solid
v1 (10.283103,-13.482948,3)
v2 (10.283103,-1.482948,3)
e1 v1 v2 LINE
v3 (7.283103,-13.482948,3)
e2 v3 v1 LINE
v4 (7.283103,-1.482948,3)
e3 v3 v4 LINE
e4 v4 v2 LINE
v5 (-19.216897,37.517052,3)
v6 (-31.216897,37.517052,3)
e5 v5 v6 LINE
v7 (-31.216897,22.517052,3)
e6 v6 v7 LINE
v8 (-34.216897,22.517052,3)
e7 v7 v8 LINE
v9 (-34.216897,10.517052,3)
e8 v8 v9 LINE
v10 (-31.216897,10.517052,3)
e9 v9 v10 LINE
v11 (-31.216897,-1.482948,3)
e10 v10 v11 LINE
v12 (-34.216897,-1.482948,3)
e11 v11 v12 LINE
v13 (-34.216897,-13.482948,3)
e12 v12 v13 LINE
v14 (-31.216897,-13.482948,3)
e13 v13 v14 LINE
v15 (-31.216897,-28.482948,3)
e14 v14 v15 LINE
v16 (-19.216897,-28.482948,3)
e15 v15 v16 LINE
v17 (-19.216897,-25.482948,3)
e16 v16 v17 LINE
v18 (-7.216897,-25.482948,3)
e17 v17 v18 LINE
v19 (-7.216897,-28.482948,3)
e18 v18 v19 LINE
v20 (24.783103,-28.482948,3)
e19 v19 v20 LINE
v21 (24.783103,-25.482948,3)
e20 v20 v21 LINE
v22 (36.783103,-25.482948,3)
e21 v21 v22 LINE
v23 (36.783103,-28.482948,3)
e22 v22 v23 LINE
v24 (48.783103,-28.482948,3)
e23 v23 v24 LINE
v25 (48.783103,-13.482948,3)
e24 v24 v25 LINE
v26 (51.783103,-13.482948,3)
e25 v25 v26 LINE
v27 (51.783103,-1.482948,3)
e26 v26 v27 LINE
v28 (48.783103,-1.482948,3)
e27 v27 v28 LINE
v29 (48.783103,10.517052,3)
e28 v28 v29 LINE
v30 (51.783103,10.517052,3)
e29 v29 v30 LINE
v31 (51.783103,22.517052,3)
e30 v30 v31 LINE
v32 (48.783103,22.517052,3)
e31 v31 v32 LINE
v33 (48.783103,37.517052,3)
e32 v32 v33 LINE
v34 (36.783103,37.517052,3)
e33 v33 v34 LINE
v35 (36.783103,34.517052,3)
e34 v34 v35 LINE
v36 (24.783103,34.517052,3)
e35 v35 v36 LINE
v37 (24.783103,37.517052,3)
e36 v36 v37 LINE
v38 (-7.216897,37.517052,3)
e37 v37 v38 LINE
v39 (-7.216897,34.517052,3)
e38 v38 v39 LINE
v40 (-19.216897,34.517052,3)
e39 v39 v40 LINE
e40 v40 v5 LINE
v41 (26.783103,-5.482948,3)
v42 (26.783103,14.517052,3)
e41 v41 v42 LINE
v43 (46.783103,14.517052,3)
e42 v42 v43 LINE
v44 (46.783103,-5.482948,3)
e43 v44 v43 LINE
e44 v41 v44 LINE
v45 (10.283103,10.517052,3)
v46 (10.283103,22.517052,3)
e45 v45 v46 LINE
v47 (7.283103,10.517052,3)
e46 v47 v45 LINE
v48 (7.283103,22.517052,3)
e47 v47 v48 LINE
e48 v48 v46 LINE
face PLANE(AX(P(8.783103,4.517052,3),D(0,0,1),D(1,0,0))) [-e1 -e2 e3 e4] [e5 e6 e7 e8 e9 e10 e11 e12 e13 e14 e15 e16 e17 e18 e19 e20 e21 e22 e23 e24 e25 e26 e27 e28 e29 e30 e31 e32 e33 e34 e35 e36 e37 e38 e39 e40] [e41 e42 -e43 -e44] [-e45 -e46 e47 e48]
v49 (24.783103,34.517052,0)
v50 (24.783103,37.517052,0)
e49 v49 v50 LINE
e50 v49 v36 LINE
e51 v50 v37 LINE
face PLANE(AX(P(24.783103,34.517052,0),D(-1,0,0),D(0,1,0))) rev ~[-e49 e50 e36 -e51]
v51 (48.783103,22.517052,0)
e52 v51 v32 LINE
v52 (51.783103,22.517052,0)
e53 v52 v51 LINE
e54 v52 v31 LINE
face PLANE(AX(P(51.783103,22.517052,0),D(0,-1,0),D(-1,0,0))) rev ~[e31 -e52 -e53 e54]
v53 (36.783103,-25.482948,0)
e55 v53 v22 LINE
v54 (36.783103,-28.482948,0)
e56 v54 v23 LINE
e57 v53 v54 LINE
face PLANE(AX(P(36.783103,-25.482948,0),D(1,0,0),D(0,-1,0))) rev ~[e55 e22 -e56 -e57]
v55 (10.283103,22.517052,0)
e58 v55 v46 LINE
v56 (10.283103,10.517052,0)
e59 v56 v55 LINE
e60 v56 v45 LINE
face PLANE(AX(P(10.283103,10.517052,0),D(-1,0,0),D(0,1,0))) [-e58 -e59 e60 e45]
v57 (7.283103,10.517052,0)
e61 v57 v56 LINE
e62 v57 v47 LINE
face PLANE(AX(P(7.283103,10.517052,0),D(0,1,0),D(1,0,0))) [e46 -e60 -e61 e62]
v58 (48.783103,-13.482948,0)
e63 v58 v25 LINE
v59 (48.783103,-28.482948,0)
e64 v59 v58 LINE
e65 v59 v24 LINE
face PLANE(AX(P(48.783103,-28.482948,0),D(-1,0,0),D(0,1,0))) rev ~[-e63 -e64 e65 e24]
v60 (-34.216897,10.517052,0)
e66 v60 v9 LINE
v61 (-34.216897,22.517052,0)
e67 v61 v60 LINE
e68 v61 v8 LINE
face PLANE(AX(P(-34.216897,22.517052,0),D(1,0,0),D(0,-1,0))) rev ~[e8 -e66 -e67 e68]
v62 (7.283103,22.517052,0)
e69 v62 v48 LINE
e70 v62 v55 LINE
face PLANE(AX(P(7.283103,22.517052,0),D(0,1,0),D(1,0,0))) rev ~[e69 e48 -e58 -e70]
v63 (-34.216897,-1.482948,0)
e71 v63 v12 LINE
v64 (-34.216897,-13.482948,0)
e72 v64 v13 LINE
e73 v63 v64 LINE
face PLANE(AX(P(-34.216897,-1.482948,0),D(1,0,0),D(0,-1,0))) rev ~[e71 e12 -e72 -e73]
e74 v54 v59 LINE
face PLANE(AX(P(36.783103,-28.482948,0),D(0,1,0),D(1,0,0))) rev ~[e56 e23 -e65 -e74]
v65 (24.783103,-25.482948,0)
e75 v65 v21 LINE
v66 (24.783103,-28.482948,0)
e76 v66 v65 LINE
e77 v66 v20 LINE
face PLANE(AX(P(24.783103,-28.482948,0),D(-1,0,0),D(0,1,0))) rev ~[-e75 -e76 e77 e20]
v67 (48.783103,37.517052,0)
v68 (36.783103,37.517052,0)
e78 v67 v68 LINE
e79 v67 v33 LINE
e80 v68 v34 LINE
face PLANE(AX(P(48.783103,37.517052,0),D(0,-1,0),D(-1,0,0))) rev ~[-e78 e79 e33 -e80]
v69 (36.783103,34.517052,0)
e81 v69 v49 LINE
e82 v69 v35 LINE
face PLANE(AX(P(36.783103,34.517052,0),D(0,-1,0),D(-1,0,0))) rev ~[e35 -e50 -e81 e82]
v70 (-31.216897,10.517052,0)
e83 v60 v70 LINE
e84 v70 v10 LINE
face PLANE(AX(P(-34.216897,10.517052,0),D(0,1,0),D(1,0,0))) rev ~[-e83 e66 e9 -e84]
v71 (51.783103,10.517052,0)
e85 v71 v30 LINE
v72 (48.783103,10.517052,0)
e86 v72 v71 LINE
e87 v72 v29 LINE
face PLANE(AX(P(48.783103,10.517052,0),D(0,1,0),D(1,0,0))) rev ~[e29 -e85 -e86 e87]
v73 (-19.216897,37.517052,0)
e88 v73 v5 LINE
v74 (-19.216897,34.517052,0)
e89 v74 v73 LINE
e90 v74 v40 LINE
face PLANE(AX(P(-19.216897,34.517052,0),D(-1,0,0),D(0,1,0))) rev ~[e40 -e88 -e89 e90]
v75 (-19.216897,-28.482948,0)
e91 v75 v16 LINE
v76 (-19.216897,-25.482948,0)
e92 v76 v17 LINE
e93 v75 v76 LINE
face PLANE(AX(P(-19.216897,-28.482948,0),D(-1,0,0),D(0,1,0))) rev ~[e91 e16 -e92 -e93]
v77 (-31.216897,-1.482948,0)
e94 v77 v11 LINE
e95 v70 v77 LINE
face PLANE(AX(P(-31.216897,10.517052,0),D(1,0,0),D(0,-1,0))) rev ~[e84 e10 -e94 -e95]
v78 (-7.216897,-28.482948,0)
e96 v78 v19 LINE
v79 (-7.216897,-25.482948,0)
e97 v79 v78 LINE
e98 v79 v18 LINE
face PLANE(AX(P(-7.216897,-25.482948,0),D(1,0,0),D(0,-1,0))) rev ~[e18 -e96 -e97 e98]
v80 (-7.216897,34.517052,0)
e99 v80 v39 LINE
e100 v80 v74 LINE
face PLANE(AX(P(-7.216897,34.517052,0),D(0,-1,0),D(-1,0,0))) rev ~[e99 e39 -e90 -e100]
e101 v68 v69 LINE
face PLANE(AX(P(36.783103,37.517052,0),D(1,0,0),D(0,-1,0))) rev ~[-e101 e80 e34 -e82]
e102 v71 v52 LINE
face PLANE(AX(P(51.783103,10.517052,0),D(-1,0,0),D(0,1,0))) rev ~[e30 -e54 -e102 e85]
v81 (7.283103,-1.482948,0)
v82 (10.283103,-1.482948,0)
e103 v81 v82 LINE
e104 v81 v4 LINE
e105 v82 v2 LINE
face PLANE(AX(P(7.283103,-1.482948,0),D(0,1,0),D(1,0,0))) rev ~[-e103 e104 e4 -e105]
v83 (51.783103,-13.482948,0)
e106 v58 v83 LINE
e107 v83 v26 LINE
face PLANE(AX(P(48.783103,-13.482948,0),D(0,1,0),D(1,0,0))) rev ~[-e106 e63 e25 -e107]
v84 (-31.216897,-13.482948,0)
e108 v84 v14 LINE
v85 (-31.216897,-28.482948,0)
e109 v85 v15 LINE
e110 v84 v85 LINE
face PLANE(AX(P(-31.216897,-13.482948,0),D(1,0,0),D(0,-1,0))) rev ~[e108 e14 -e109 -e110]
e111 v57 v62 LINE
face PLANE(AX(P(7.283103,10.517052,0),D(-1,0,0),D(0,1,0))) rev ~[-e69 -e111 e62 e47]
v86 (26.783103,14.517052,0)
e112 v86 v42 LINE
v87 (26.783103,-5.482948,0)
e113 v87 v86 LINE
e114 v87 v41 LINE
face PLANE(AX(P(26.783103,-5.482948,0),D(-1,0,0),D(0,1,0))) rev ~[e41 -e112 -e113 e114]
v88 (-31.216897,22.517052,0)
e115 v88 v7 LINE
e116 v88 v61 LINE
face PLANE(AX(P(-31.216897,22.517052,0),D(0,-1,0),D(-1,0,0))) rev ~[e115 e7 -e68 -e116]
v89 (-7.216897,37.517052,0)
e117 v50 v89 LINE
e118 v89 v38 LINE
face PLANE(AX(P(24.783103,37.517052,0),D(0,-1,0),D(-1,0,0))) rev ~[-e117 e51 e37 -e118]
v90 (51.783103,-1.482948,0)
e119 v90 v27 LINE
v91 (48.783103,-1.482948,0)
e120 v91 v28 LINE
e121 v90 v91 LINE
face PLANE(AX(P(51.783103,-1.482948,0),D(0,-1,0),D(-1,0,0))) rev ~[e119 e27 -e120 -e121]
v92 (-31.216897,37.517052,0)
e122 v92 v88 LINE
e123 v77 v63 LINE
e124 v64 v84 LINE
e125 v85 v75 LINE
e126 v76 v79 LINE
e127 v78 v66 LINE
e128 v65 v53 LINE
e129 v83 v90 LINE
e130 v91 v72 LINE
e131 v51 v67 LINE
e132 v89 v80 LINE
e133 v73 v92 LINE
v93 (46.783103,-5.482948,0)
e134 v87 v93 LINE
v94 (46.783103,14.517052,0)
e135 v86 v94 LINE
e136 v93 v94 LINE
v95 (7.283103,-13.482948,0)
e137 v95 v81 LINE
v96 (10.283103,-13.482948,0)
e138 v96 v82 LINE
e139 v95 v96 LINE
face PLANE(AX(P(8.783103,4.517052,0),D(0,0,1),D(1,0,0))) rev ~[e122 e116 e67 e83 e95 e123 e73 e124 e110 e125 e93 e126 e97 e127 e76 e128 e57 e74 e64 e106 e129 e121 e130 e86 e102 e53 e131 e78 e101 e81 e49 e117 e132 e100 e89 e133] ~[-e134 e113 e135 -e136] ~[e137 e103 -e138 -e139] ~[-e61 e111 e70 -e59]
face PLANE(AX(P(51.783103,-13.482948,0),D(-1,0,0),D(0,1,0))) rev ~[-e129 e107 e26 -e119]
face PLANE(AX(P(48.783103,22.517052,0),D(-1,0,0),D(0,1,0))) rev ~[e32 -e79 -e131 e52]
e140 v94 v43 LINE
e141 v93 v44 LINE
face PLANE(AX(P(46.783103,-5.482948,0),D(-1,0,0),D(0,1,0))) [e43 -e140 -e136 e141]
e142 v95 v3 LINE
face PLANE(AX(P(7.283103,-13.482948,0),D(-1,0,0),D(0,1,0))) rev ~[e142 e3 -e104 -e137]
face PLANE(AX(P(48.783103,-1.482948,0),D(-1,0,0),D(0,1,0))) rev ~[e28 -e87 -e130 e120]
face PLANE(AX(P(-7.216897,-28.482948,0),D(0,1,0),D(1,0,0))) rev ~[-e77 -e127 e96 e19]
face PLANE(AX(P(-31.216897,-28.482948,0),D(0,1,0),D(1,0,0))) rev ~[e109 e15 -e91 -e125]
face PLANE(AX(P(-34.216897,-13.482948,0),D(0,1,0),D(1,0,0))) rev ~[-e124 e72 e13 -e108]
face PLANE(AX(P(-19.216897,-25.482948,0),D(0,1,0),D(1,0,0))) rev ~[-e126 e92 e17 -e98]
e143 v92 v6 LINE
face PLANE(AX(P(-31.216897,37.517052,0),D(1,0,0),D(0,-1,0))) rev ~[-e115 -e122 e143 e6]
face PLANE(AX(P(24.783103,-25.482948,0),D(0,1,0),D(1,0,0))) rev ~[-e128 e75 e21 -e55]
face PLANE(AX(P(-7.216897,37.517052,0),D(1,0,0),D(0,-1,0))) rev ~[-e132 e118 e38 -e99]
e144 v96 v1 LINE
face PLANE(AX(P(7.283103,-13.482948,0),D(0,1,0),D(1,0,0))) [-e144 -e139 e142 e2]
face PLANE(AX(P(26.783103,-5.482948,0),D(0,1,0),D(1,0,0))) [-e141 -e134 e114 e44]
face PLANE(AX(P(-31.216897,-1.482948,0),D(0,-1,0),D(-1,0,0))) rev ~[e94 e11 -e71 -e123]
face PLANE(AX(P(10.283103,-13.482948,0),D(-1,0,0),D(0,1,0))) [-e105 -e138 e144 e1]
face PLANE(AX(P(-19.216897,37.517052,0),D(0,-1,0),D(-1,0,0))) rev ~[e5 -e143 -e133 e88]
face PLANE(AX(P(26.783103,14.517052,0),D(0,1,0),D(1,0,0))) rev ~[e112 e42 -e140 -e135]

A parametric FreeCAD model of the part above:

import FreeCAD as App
import Part
import Sketcher
Q = App.Units.Quantity


def add_polygon(sketch, points):
    """Adds a closed chain of lines whose ends are joined by coincident constraints."""
    first, n = sketch.GeometryCount, len(points)
    for a, b in zip(points, points[1:] + points[:1]):
        sketch.addGeometry(Part.LineSegment(App.Vector(*a, 0), App.Vector(*b, 0)), False)
    for i in range(n):
        sketch.addConstraint(Sketcher.Constraint("Coincident", first + i, 2, first + (i + 1) % n, 1))

doc = App.newDocument("Part")
body = doc.addObject("PartDesign::Body", "Body")

sketch1 = doc.addObject("Sketcher::SketchObject", "Sketch")
body.addObject(sketch1)
sketch1.AttachmentSupport = (doc.XY_Plane, [""])
sketch1.MapMode = "FlatFace"
add_polygon(sketch1, [(-31.216897, 10.517052), (-31.216897, -1.482948), (-34.216897, -1.482948), (-34.216897, -13.482948), (-31.216897, -13.482948), (-31.216897, -28.482948), (-19.216897, -28.482948), (-19.216897, -25.482948), (-7.216897, -25.482948), (-7.216897, -28.482948), (24.783103, -28.482948), (24.783103, -25.482948), (36.783103, -25.482948), (36.783103, -28.482948), (48.783103, -28.482948), (48.783103, -13.482948), (51.783103, -13.482948), (51.783103, -1.482948), (48.783103, -1.482948), (48.783103, 10.517052), (51.783103, 10.517052), (51.783103, 22.517052), (48.783103, 22.517052), (48.783103, 37.517052), (36.783103, 37.517052), (36.783103, 34.517052), (24.783103, 34.517052), (24.783103, 37.517052), (-7.216897, 37.517052), (-7.216897, 34.517052), (-19.216897, 34.517052), (-19.216897, 37.517052), (-31.216897, 37.517052), (-31.216897, 22.517052), (-34.216897, 22.517052), (-34.216897, 10.517052)])
add_polygon(sketch1, [(10.283103, -13.482948), (7.283103, -13.482948), (7.283103, -1.482948), (10.283103, -1.482948)])
add_polygon(sketch1, [(10.283103, 10.517052), (7.283103, 10.517052), (7.283103, 22.517052), (10.283103, 22.517052)])
add_polygon(sketch1, [(46.783103, -5.482948), (26.783103, -5.482948), (26.783103, 14.517052), (46.783103, 14.517052)])
sketch1.addConstraint(Sketcher.Constraint("Vertical", 0))
sketch1.addConstraint(Sketcher.Constraint("Horizontal", 1))
sketch1.addConstraint(Sketcher.Constraint("Vertical", 2))
sketch1.addConstraint(Sketcher.Constraint("Horizontal", 3))
sketch1.addConstraint(Sketcher.Constraint("Vertical", 4))
sketch1.addConstraint(Sketcher.Constraint("Horizontal", 5))
sketch1.addConstraint(Sketcher.Constraint("Vertical", 6))
sketch1.addConstraint(Sketcher.Constraint("Horizontal", 7))
sketch1.addConstraint(Sketcher.Constraint("Vertical", 8))
sketch1.addConstraint(Sketcher.Constraint("Horizontal", 9))
sketch1.addConstraint(Sketcher.Constraint("Vertical", 10))
sketch1.addConstraint(Sketcher.Constraint("Horizontal", 11))
sketch1.addConstraint(Sketcher.Constraint("Vertical", 12))
sketch1.addConstraint(Sketcher.Constraint("Horizontal", 13))
sketch1.addConstraint(Sketcher.Constraint("Vertical", 14))
sketch1.addConstraint(Sketcher.Constraint("Horizontal", 15))
sketch1.addConstraint(Sketcher.Constraint("Vertical", 16))
sketch1.addConstraint(Sketcher.Constraint("Horizontal", 17))
sketch1.addConstraint(Sketcher.Constraint("Vertical", 18))
sketch1.addConstraint(Sketcher.Constraint("Horizontal", 19))
sketch1.addConstraint(Sketcher.Constraint("Vertical", 20))
sketch1.addConstraint(Sketcher.Constraint("Horizontal", 21))
sketch1.addConstraint(Sketcher.Constraint("Vertical", 22))
sketch1.addConstraint(Sketcher.Constraint("Horizontal", 23))
sketch1.addConstraint(Sketcher.Constraint("Vertical", 24))
sketch1.addConstraint(Sketcher.Constraint("Horizontal", 25))
sketch1.addConstraint(Sketcher.Constraint("Vertical", 26))
sketch1.addConstraint(Sketcher.Constraint("Horizontal", 27))
sketch1.addConstraint(Sketcher.Constraint("Vertical", 28))
sketch1.addConstraint(Sketcher.Constraint("Horizontal", 29))
sketch1.addConstraint(Sketcher.Constraint("Vertical", 30))
sketch1.addConstraint(Sketcher.Constraint("Horizontal", 31))
sketch1.addConstraint(Sketcher.Constraint("Vertical", 32))
sketch1.addConstraint(Sketcher.Constraint("Horizontal", 33))
sketch1.addConstraint(Sketcher.Constraint("Vertical", 34))
sketch1.addConstraint(Sketcher.Constraint("Horizontal", 35))
sketch1.addConstraint(Sketcher.Constraint("Horizontal", 36))
sketch1.addConstraint(Sketcher.Constraint("Vertical", 37))
sketch1.addConstraint(Sketcher.Constraint("Horizontal", 38))
sketch1.addConstraint(Sketcher.Constraint("Vertical", 39))
sketch1.addConstraint(Sketcher.Constraint("Horizontal", 40))
sketch1.addConstraint(Sketcher.Constraint("Vertical", 41))
sketch1.addConstraint(Sketcher.Constraint("Horizontal", 42))
sketch1.addConstraint(Sketcher.Constraint("Vertical", 43))
sketch1.addConstraint(Sketcher.Constraint("Horizontal", 44))
sketch1.addConstraint(Sketcher.Constraint("Vertical", 45))
sketch1.addConstraint(Sketcher.Constraint("Horizontal", 46))
sketch1.addConstraint(Sketcher.Constraint("Vertical", 47))
sketch1.addConstraint(Sketcher.Constraint("Horizontal", 5, 2, 8, 2))
sketch1.addConstraint(Sketcher.Constraint("Horizontal", 7, 2, 10, 2))
sketch1.addConstraint(Sketcher.Constraint("Horizontal", 9, 2, 12, 2))
sketch1.addConstraint(Sketcher.Constraint("Horizontal", 3, 2, 14, 2))
sketch1.addConstraint(Sketcher.Constraint("Horizontal", 1, 2, 16, 2))
sketch1.addConstraint(Sketcher.Constraint("Horizontal", 23, 2, 26, 2))
sketch1.addConstraint(Sketcher.Constraint("Horizontal", 25, 2, 28, 2))
sketch1.addConstraint(Sketcher.Constraint("Horizontal", 27, 2, 30, 2))
sketch1.addConstraint(Sketcher.Constraint("Horizontal", 21, 2, 32, 2))
sketch1.addConstraint(Sketcher.Constraint("Horizontal", 19, 2, 34, 2))
sketch1.addConstraint(Sketcher.Constraint("Horizontal", 15, 2, 36, 2))
sketch1.addConstraint(Sketcher.Constraint("Horizontal", 17, 2, 37, 2))
sketch1.addConstraint(Sketcher.Constraint("Horizontal", 35, 2, 40, 2))
sketch1.addConstraint(Sketcher.Constraint("Horizontal", 33, 2, 41, 2))
sketch1.addConstraint(Sketcher.Constraint("Vertical", 0, 2, 3, 2))
sketch1.addConstraint(Sketcher.Constraint("Vertical", 14, 2, 17, 2))
sketch1.addConstraint(Sketcher.Constraint("Vertical", 16, 2, 19, 2))
sketch1.addConstraint(Sketcher.Constraint("Vertical", 18, 2, 21, 2))
sketch1.addConstraint(Sketcher.Constraint("Vertical", 12, 2, 23, 2))
sketch1.addConstraint(Sketcher.Constraint("Vertical", 10, 2, 25, 2))
sketch1.addConstraint(Sketcher.Constraint("Vertical", 8, 2, 27, 2))
sketch1.addConstraint(Sketcher.Constraint("Vertical", 6, 2, 29, 2))
sketch1.addConstraint(Sketcher.Constraint("Vertical", 4, 2, 31, 2))
sketch1.addConstraint(Sketcher.Constraint("Vertical", 2, 2, 33, 2))
sketch1.addConstraint(Sketcher.Constraint("Vertical", 37, 2, 40, 2))
sketch1.addConstraint(Sketcher.Constraint("Vertical", 39, 2, 42, 2))
sketch1.addConstraint(Sketcher.Constraint("Equal", 5, 7))
sketch1.addConstraint(Sketcher.Constraint("Equal", 7, 11))
sketch1.addConstraint(Sketcher.Constraint("Equal", 11, 13))
sketch1.addConstraint(Sketcher.Constraint("Equal", 3, 15))
sketch1.addConstraint(Sketcher.Constraint("Equal", 35, 36))
sketch1.addConstraint(Sketcher.Constraint("Equal", 31, 0))
sketch1.addConstraint(Sketcher.Constraint("Equal", 0, 2))
sketch1.addConstraint(Sketcher.Constraint("Equal", 42, 6))
sketch1.addConstraint(Sketcher.Constraint("Equal", 18, 20))
sketch1.addConstraint(Sketcher.Constraint("Equal", 14, 22))
sketch1.addConstraint(Sketcher.Constraint("Equal", 12, 24))
sketch1.addConstraint(Sketcher.Constraint("Equal", 46, 45))
sketch1.addConstraint(Sketcher.Constraint("DistanceX", 1, 2, 1, 1, Q("3 mm")))
sketch1.addConstraint(Sketcher.Constraint("DistanceX", 5, 1, 5, 2, Q("12 mm")))
sketch1.addConstraint(Sketcher.Constraint("DistanceX", 9, 1, 9, 2, Q("32 mm")))
sketch1.addConstraint(Sketcher.Constraint("DistanceX", 44, 2, 44, 1, Q("20 mm")))
sketch1.addConstraint(Sketcher.Constraint("DistanceY", 4, 2, 4, 1, Q("15 mm")))
sketch1.addConstraint(Sketcher.Constraint("DistanceY", 44, 2, 38, 2, Q("4 mm")))
sketch1.addConstraint(Sketcher.Constraint("DistanceX", 10, 2, 44, 2, Q("2 mm")))
sketch1.addConstraint(Sketcher.Constraint("DistanceX", 7, 2, 36, 2, Q("14.5 mm")))
sketch1.addConstraint(Sketcher.Constraint("DistanceX", 0, 2, -1, 1, Q("31.216897 mm")))
sketch1.addConstraint(Sketcher.Constraint("DistanceY", 0, 2, -1, 1, Q("1.482948 mm")))
pad1 = doc.addObject("PartDesign::Pad", "Pad")
body.addObject(pad1)
pad1.Profile = sketch1
pad1.Length = 3

doc.recompute()
